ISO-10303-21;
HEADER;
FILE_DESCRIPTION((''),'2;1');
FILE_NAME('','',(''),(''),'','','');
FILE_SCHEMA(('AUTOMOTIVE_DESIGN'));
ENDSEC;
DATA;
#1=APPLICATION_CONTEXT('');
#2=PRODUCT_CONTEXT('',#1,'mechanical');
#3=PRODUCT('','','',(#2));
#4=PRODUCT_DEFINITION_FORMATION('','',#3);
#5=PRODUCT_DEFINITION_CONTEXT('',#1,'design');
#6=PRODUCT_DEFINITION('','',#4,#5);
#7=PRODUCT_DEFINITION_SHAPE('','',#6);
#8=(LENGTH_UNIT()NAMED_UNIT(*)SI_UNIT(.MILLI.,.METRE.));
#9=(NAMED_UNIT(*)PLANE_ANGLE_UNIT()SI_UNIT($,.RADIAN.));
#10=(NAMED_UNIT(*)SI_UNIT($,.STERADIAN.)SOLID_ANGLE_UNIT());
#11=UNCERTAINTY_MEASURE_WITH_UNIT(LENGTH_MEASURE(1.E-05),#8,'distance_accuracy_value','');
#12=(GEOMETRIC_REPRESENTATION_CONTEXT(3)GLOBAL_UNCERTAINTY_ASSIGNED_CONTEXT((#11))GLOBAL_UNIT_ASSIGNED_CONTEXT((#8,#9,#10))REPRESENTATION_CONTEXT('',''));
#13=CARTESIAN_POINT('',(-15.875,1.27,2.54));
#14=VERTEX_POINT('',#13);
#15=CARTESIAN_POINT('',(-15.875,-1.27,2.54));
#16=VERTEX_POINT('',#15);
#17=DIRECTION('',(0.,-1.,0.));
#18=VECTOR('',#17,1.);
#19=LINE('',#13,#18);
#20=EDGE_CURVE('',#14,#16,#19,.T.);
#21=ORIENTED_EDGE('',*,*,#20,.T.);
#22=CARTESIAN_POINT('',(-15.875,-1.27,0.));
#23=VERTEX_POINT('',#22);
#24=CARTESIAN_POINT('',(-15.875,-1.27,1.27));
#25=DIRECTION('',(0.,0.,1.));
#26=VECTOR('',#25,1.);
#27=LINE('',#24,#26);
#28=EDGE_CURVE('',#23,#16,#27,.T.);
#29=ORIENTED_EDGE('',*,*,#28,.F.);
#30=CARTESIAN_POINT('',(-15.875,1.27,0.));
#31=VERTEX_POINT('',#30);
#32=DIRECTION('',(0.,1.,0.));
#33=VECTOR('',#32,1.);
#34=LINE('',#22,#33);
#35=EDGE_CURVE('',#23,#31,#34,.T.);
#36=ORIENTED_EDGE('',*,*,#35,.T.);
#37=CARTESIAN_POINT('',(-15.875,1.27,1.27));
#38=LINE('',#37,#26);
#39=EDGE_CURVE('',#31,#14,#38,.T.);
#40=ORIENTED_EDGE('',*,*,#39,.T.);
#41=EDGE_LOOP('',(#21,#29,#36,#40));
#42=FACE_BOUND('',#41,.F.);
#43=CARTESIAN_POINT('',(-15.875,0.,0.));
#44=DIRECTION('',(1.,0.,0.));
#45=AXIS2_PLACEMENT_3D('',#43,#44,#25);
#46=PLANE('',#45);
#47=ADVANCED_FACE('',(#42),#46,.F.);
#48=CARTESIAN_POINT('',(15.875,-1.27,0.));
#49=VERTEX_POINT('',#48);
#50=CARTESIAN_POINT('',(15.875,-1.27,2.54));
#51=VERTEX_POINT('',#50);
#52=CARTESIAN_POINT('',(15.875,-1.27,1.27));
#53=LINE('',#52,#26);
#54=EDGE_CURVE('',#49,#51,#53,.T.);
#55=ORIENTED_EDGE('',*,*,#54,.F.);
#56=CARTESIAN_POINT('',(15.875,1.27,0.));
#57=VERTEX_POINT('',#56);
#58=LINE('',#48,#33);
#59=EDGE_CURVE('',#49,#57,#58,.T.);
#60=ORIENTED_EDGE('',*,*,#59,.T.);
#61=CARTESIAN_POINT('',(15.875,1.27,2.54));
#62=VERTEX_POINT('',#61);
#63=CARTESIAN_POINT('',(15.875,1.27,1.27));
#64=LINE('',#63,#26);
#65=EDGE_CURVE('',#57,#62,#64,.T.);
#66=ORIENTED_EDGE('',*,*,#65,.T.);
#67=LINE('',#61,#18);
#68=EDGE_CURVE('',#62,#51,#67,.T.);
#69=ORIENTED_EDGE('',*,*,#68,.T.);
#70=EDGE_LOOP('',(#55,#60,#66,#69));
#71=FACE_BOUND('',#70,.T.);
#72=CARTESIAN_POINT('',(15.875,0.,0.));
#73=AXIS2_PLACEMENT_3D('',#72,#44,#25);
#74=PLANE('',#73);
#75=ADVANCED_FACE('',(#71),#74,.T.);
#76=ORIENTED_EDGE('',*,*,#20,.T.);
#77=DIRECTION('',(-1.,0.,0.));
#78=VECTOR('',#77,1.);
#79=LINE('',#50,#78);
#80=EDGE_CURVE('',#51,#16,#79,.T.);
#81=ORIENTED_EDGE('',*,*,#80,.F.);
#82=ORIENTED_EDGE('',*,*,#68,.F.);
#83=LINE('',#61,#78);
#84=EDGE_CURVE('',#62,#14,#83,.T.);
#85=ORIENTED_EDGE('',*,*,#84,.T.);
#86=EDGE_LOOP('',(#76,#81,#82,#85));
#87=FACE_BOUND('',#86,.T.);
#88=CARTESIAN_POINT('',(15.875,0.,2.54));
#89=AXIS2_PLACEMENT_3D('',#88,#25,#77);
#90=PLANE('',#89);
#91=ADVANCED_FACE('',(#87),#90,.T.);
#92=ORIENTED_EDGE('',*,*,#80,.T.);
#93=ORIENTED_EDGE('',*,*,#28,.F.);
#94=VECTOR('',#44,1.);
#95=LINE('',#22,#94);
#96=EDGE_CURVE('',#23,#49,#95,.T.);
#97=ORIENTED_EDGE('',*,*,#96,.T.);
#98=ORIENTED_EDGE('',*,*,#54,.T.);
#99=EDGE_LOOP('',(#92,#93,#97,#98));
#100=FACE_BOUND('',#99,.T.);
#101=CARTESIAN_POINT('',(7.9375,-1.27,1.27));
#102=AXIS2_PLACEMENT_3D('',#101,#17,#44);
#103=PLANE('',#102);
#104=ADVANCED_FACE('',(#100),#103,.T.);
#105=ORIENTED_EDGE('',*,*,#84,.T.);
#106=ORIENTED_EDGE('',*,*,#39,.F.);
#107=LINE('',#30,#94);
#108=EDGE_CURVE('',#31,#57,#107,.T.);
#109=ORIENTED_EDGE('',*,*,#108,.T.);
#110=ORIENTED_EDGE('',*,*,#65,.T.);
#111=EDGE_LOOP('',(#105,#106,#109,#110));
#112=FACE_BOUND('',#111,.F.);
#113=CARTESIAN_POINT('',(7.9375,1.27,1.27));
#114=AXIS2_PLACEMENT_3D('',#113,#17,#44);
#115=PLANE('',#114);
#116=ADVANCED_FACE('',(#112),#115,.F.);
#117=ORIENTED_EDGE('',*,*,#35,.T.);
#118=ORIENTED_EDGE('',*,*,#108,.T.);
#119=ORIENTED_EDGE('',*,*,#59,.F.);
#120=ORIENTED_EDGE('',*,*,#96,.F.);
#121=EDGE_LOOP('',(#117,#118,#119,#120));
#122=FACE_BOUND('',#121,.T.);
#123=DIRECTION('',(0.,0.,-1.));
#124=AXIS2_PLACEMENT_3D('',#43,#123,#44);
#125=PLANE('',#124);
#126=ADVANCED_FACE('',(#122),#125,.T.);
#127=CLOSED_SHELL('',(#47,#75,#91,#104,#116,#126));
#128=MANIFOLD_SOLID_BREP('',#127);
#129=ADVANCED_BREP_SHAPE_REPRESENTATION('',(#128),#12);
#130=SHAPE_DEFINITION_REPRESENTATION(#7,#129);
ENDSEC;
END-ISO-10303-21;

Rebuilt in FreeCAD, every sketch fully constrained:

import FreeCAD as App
import Part
import Sketcher
Q = App.Units.Quantity


def add_polygon(sketch, points):
    """Adds a closed chain of lines whose ends are joined by coincident constraints."""
    first, n = sketch.GeometryCount, len(points)
    for a, b in zip(points, points[1:] + points[:1]):
        sketch.addGeometry(Part.LineSegment(App.Vector(*a, 0), App.Vector(*b, 0)), False)
    for i in range(n):
        sketch.addConstraint(Sketcher.Constraint("Coincident", first + i, 2, first + (i + 1) % n, 1))

doc = App.newDocument("Part")
params = doc.addObject("Spreadsheet::Sheet", "Params")
for row, (alias, value) in enumerate([
    ("sketch1_height", "0.1 in"),
    ("sketch1_width", "1.25 in"),
    ("pad1_length", "0.1 in"),
], start=1):
    params.set(f"A{row}", alias)
    params.set(f"B{row}", "=" + value)
    params.setAlias(f"B{row}", alias)

body = doc.addObject("PartDesign::Body", "Body")

# Sketch on XZ plane
sketch1 = body.newObject("Sketcher::SketchObject", "Sketch")
sketch1.AttachmentSupport = (doc.getObject("XZ_Plane"), [""])
sketch1.MapMode = "FlatFace"
add_polygon(sketch1, [(15.9, 0), (15.9, 2.5), (-15.9, 2.5), (-15.9, 0)])  # lines 0-3
sketch1.addConstraint(Sketcher.Constraint("Vertical", 0))
sketch1.addConstraint(Sketcher.Constraint("Horizontal", 1))
sketch1.addConstraint(Sketcher.Constraint("Vertical", 2))
sketch1.addConstraint(Sketcher.Constraint("Horizontal", 3))
sketch1.addConstraint(Sketcher.Constraint("Symmetric", 2, 2, 3, 2, -1, 1))
sketch1.addConstraint(Sketcher.Constraint("DistanceY", 0, 1, 0, 2, Q("0.1 in")))
sketch1.addConstraint(Sketcher.Constraint("DistanceX", 1, 2, 1, 1, Q("1.25 in")))
sketch1.setExpression("Constraints[9]", "Params.sketch1_height")
sketch1.setExpression("Constraints[10]", "Params.sketch1_width")
pad1 = body.newObject("PartDesign::Pad", "Pad")
pad1.Profile = sketch1
pad1.setExpression("Length", "Params.pad1_length")
pad1.Midplane = True

doc.recompute()
